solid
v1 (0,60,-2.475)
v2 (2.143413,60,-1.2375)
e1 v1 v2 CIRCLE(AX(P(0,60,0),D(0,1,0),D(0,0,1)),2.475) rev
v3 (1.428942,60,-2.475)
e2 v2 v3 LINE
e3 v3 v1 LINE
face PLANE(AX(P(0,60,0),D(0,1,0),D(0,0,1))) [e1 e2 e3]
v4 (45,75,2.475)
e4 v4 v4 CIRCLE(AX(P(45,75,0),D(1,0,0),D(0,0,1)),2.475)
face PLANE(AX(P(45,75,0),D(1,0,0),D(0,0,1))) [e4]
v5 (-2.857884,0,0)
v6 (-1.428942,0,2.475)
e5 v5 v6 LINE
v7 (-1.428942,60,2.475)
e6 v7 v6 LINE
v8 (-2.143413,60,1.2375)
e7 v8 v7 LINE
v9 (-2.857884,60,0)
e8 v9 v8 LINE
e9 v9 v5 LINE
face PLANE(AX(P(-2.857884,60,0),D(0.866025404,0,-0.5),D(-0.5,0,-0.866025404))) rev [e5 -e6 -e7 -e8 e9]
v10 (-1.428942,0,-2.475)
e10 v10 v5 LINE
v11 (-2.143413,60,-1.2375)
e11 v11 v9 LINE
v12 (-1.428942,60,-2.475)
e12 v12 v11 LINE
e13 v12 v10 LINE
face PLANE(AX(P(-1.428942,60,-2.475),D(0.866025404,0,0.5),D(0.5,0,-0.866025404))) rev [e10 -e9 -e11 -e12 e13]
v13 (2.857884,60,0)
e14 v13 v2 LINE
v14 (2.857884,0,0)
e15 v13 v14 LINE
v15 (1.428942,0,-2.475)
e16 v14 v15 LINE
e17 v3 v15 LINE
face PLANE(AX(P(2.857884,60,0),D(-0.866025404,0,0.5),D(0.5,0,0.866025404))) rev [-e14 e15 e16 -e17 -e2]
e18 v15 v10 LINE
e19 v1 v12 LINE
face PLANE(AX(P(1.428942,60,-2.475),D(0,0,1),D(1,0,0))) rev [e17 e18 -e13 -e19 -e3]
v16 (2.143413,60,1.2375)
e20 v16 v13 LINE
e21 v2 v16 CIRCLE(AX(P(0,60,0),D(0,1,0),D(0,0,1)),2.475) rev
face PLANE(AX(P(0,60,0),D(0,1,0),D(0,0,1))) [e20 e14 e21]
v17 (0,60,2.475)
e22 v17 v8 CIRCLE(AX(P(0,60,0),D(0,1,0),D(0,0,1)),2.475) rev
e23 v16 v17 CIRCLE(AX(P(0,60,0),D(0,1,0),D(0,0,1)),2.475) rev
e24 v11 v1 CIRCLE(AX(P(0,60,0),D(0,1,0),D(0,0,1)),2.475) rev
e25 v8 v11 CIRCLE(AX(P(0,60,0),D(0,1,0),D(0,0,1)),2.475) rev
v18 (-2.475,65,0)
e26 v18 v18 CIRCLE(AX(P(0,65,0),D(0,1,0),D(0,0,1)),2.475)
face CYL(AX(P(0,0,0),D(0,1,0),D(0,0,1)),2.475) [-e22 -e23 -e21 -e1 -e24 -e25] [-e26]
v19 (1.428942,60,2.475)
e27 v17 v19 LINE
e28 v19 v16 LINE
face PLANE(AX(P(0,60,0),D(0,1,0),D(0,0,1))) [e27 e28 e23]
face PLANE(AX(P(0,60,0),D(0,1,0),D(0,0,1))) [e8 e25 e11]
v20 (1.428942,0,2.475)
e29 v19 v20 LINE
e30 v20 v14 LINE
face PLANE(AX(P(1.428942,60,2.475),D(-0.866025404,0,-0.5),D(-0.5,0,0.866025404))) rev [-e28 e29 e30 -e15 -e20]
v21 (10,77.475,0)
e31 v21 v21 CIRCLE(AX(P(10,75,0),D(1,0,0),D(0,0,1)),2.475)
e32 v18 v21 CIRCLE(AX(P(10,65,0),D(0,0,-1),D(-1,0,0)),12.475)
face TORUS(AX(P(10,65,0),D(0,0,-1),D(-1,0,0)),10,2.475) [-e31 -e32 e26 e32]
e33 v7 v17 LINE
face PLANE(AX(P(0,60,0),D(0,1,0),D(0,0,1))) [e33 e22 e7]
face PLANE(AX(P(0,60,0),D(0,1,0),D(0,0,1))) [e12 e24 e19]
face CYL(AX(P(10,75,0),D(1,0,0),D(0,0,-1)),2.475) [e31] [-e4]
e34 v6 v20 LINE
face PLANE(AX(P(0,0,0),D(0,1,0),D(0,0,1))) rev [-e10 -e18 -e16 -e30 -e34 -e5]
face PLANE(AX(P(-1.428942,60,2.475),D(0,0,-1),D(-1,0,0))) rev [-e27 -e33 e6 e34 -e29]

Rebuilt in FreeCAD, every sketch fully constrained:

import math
import FreeCAD as App
import Part
import Sketcher

V = App.Vector
Q = App.Units.Quantity

doc = App.newDocument("Part")
body = doc.addObject("PartDesign::Body", "Body")

# Sketch on XZ plane
sketch1 = doc.addObject("Sketcher::SketchObject", "Sketch")
body.addObject(sketch1)
sketch1.AttachmentSupport = (doc.XZ_Plane, [""])
sketch1.MapMode = "FlatFace"
sketch1.addGeometry(Part.Circle(V(0, 0, 0), V(0, 0, 1), 2.475), False)
sketch1.addConstraint([
    Sketcher.Constraint("Coincident", 0, 3, -1, 1),
    Sketcher.Constraint("Diameter", 0, 4.95),
])

# Sketch on XY plane
sketch2 = doc.addObject("Sketcher::SketchObject", "Sketch001")
body.addObject(sketch2)
sketch2.AttachmentSupport = (doc.XY_Plane, [""])
sketch2.MapMode = "FlatFace"
sketch2.addGeometry([
    Part.LineSegment(V(0, 0, 0), V(0, 65, 0)),
    Part.ArcOfCircle(Part.Circle(V(10, 65, 0), V(0, 0, 1), 10), math.radians(90), math.radians(180)),
    Part.LineSegment(V(10, 75, 0), V(45, 75, 0)),
], False)
sketch2.addConstraint([
    Sketcher.Constraint("Tangent", 0, 2, 1, 2),
    Sketcher.Constraint("Tangent", 1, 1, 2, 1),
    Sketcher.Constraint("Vertical", 0),
    Sketcher.Constraint("Horizontal", 2),
    Sketcher.Constraint("Coincident", 0, 1, -1, 1),
    Sketcher.Constraint("Radius", 1, 10.0),
    Sketcher.Constraint("DistanceX", 2, 1, 2, 2, 35.0),
    Sketcher.Constraint("DistanceY", 0, 1, 0, 2, 65.0),
])
doc.recompute()

additivepipe = doc.addObject("PartDesign::AdditivePipe", "AdditivePipe")
body.addObject(additivepipe)
additivepipe.Profile = sketch1
additivepipe.Spine = (sketch2, ["Edge1", "Edge2", "Edge3"])

# Sketch on XZ plane
sketch3 = doc.addObject("Sketcher::SketchObject", "Sketch002")
body.addObject(sketch3)
sketch3.AttachmentSupport = (doc.XZ_Plane, [""])
sketch3.MapMode = "FlatFace"
sketch3.addGeometry([
    Part.LineSegment(V(2.857884, 0, 0), V(1.428942, -2.475, 0)),  # 0
    Part.LineSegment(V(1.428942, -2.475, 0), V(-1.428942, -2.475, 0)),  # 1
    Part.LineSegment(V(-1.428942, -2.475, 0), V(-2.857884, 0, 0)),  # 2
    Part.LineSegment(V(-2.857884, 0, 0), V(-1.428942, 2.475, 0)),  # 3
    Part.LineSegment(V(-1.428942, 2.475, 0), V(1.428942, 2.475, 0)),  # 4
    Part.LineSegment(V(1.428942, 2.475, 0), V(2.857884, 0, 0)),  # 5
], False)
sketch3.addConstraint([
    Sketcher.Constraint("Coincident", 0, 2, 1, 1),
    Sketcher.Constraint("Coincident", 1, 2, 2, 1),
    Sketcher.Constraint("Coincident", 2, 2, 3, 1),
    Sketcher.Constraint("Coincident", 3, 2, 4, 1),
    Sketcher.Constraint("Coincident", 4, 2, 5, 1),
    Sketcher.Constraint("Coincident", 5, 2, 0, 1),
    Sketcher.Constraint("Horizontal", 1),
    Sketcher.Constraint("Horizontal", 4),
    Sketcher.Constraint("Symmetric", 0, 2, 3, 2, -1, 1),
    Sketcher.Constraint("Symmetric", 2, 2, 5, 2, -1, 1),
    Sketcher.Constraint("PointOnObject", 2, 2, -1),
    Sketcher.Constraint("Parallel", 2, 5),
    Sketcher.Constraint("Vertical", 1, 2, 3, 2),
    Sketcher.Constraint("Angle", 0, Q("-120 deg")),
    Sketcher.Constraint("DistanceY", 1, 2, 3, 2, 4.95),
    Sketcher.Constraint("DistanceX", 1, 2, 1, 1, 2.857884),
])
pad1 = doc.addObject("PartDesign::Pad", "Pad")
body.addObject(pad1)
pad1.Profile = sketch3
pad1.Length = 60
pad1.Reversed = True

doc.recompute()
